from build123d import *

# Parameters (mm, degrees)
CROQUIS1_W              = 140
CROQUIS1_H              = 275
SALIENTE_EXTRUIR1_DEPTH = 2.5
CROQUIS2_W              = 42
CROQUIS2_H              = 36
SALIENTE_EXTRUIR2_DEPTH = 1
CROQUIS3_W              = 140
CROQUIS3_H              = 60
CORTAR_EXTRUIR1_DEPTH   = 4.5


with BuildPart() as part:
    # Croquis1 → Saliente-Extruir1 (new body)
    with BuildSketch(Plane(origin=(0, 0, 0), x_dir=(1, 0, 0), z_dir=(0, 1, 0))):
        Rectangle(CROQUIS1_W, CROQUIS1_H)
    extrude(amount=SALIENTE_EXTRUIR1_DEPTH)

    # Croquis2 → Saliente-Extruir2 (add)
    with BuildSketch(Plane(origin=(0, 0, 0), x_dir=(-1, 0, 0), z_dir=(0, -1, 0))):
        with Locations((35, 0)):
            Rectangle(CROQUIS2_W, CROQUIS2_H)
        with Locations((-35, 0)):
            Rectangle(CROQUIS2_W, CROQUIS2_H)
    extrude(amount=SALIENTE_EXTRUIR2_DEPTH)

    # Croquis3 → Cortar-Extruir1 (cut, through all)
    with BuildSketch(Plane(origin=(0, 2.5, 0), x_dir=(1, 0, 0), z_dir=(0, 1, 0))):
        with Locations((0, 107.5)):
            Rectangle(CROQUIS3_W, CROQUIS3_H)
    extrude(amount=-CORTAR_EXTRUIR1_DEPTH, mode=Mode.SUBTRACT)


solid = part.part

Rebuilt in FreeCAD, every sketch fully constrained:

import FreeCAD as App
import Part
import Sketcher

doc = App.newDocument("Part")
body = doc.addObject("PartDesign::Body", "Body")

sketch1 = body.newObject("Sketcher::SketchObject", "Sketch")
sketch1.AttachmentSupport = (doc.getObject("XZ_Plane"), [""])
sketch1.MapMode = "FlatFace"
sketch1.addGeometry(Part.LineSegment(App.Vector(-70, -138, 0), App.Vector(-70, 138, 0)), False)
sketch1.addGeometry(Part.LineSegment(App.Vector(-70, 138, 0), App.Vector(70, 138, 0)), False)
sketch1.addGeometry(Part.LineSegment(App.Vector(70, 138, 0), App.Vector(70, -138, 0)), False)
sketch1.addGeometry(Part.LineSegment(App.Vector(70, -138, 0), App.Vector(-70, -138, 0)), False)
sketch1.addConstraint(Sketcher.Constraint("Coincident", 0, 2, 1, 1))
sketch1.addConstraint(Sketcher.Constraint("Coincident", 1, 2, 2, 1))
sketch1.addConstraint(Sketcher.Constraint("Coincident", 2, 2, 3, 1))
sketch1.addConstraint(Sketcher.Constraint("Coincident", 3, 2, 0, 1))
sketch1.addConstraint(Sketcher.Constraint("Vertical", 0))
sketch1.addConstraint(Sketcher.Constraint("Horizontal", 1))
sketch1.addConstraint(Sketcher.Constraint("Vertical", 2))
sketch1.addConstraint(Sketcher.Constraint("Horizontal", 3))
sketch1.addConstraint(Sketcher.Constraint("Symmetric", 0, 2, 2, 2, -1, 1))
sketch1.addConstraint(Sketcher.Constraint("DistanceX", 1, 1, 1, 2, 140.0))
sketch1.addConstraint(Sketcher.Constraint("DistanceY", 0, 1, 0, 2, 275.0))
pad1 = body.newObject("PartDesign::Pad", "Pad")
pad1.Profile = sketch1
pad1.Length = 2.5
pad1.Reversed = True

sketch2 = body.newObject("Sketcher::SketchObject", "Sketch001")
sketch2.AttachmentSupport = (doc.getObject("XZ_Plane"), [""])
sketch2.MapMode = "FlatFace"
sketch2.addGeometry(Part.LineSegment(App.Vector(-14, -18, 0), App.Vector(-14, 18, 0)), False)
sketch2.addGeometry(Part.LineSegment(App.Vector(-14, 18, 0), App.Vector(-56, 18, 0)), False)
sketch2.addGeometry(Part.LineSegment(App.Vector(-56, 18, 0), App.Vector(-56, -18, 0)), False)
sketch2.addGeometry(Part.LineSegment(App.Vector(-56, -18, 0), App.Vector(-14, -18, 0)), False)
sketch2.addGeometry(Part.LineSegment(App.Vector(56, -18, 0), App.Vector(56, 18, 0)), False)
sketch2.addGeometry(Part.LineSegment(App.Vector(56, 18, 0), App.Vector(14, 18, 0)), False)
sketch2.addGeometry(Part.LineSegment(App.Vector(14, 18, 0), App.Vector(14, -18, 0)), False)
sketch2.addGeometry(Part.LineSegment(App.Vector(14, -18, 0), App.Vector(56, -18, 0)), False)
sketch2.addConstraint(Sketcher.Constraint("Coincident", 0, 2, 1, 1))
sketch2.addConstraint(Sketcher.Constraint("Coincident", 1, 2, 2, 1))
sketch2.addConstraint(Sketcher.Constraint("Coincident", 2, 2, 3, 1))
sketch2.addConstraint(Sketcher.Constraint("Coincident", 3, 2, 0, 1))
sketch2.addConstraint(Sketcher.Constraint("Coincident", 4, 2, 5, 1))
sketch2.addConstraint(Sketcher.Constraint("Coincident", 5, 2, 6, 1))
sketch2.addConstraint(Sketcher.Constraint("Coincident", 6, 2, 7, 1))
sketch2.addConstraint(Sketcher.Constraint("Coincident", 7, 2, 4, 1))
sketch2.addConstraint(Sketcher.Constraint("Vertical", 0))
sketch2.addConstraint(Sketcher.Constraint("Horizontal", 1))
sketch2.addConstraint(Sketcher.Constraint("Vertical", 2))
sketch2.addConstraint(Sketcher.Constraint("Horizontal", 3))
sketch2.addConstraint(Sketcher.Constraint("Vertical", 4))
sketch2.addConstraint(Sketcher.Constraint("Horizontal", 5))
sketch2.addConstraint(Sketcher.Constraint("Vertical", 6))
sketch2.addConstraint(Sketcher.Constraint("Horizontal", 7))
sketch2.addConstraint(Sketcher.Constraint("Symmetric", 2, 2, 4, 2, -1, 1))
sketch2.addConstraint(Sketcher.Constraint("Symmetric", 0, 2, 6, 2, -1, 1))
sketch2.addConstraint(Sketcher.Constraint("Horizontal", 1, 2, 4, 2))
sketch2.addConstraint(Sketcher.Constraint("DistanceX", 1, 2, 1, 1, 42.0))
sketch2.addConstraint(Sketcher.Constraint("DistanceY", 0, 1, 0, 2, 36.0))
sketch2.addConstraint(Sketcher.Constraint("DistanceX", 0, 2, -1, 1, 14.0))
pad2 = body.newObject("PartDesign::Pad", "Pad001")
pad2.Profile = sketch2
pad2.Length = 1

sketch3 = body.newObject("Sketcher::SketchObject", "Sketch002")
sketch3.AttachmentSupport = (doc.getObject("XZ_Plane"), [""])
sketch3.MapMode = "FlatFace"
sketch3.AttachmentOffset = App.Placement(App.Vector(0, 0, -2.5), App.Rotation())
sketch3.addGeometry(Part.LineSegment(App.Vector(-70, -138, 0), App.Vector(-70, -78, 0)), False)
sketch3.addGeometry(Part.LineSegment(App.Vector(-70, -78, 0), App.Vector(70, -78, 0)), False)
sketch3.addGeometry(Part.LineSegment(App.Vector(70, -78, 0), App.Vector(70, -138, 0)), False)
sketch3.addGeometry(Part.LineSegment(App.Vector(70, -138, 0), App.Vector(-70, -138, 0)), False)
sketch3.addConstraint(Sketcher.Constraint("Coincident", 0, 2, 1, 1))
sketch3.addConstraint(Sketcher.Constraint("Coincident", 1, 2, 2, 1))
sketch3.addConstraint(Sketcher.Constraint("Coincident", 2, 2, 3, 1))
sketch3.addConstraint(Sketcher.Constraint("Coincident", 3, 2, 0, 1))
sketch3.addConstraint(Sketcher.Constraint("Vertical", 0))
sketch3.addConstraint(Sketcher.Constraint("Horizontal", 1))
sketch3.addConstraint(Sketcher.Constraint("Vertical", 2))
sketch3.addConstraint(Sketcher.Constraint("Horizontal", 3))
sketch3.addConstraint(Sketcher.Constraint("DistanceX", 1, 1, 1, 2, 140.0))
sketch3.addConstraint(Sketcher.Constraint("DistanceY", 0, 1, 0, 2, 60.0))
sketch3.addConstraint(Sketcher.Constraint("DistanceX", 0, 2, -1, 1, 70.0))
sketch3.addConstraint(Sketcher.Constraint("DistanceY", 0, 2, -1, 1, 77.5))
pocket1 = body.newObject("PartDesign::Pocket", "Pocket")
pocket1.Profile = sketch3
pocket1.Type = "ThroughAll"
pocket1.Reversed = True

doc.recompute()
